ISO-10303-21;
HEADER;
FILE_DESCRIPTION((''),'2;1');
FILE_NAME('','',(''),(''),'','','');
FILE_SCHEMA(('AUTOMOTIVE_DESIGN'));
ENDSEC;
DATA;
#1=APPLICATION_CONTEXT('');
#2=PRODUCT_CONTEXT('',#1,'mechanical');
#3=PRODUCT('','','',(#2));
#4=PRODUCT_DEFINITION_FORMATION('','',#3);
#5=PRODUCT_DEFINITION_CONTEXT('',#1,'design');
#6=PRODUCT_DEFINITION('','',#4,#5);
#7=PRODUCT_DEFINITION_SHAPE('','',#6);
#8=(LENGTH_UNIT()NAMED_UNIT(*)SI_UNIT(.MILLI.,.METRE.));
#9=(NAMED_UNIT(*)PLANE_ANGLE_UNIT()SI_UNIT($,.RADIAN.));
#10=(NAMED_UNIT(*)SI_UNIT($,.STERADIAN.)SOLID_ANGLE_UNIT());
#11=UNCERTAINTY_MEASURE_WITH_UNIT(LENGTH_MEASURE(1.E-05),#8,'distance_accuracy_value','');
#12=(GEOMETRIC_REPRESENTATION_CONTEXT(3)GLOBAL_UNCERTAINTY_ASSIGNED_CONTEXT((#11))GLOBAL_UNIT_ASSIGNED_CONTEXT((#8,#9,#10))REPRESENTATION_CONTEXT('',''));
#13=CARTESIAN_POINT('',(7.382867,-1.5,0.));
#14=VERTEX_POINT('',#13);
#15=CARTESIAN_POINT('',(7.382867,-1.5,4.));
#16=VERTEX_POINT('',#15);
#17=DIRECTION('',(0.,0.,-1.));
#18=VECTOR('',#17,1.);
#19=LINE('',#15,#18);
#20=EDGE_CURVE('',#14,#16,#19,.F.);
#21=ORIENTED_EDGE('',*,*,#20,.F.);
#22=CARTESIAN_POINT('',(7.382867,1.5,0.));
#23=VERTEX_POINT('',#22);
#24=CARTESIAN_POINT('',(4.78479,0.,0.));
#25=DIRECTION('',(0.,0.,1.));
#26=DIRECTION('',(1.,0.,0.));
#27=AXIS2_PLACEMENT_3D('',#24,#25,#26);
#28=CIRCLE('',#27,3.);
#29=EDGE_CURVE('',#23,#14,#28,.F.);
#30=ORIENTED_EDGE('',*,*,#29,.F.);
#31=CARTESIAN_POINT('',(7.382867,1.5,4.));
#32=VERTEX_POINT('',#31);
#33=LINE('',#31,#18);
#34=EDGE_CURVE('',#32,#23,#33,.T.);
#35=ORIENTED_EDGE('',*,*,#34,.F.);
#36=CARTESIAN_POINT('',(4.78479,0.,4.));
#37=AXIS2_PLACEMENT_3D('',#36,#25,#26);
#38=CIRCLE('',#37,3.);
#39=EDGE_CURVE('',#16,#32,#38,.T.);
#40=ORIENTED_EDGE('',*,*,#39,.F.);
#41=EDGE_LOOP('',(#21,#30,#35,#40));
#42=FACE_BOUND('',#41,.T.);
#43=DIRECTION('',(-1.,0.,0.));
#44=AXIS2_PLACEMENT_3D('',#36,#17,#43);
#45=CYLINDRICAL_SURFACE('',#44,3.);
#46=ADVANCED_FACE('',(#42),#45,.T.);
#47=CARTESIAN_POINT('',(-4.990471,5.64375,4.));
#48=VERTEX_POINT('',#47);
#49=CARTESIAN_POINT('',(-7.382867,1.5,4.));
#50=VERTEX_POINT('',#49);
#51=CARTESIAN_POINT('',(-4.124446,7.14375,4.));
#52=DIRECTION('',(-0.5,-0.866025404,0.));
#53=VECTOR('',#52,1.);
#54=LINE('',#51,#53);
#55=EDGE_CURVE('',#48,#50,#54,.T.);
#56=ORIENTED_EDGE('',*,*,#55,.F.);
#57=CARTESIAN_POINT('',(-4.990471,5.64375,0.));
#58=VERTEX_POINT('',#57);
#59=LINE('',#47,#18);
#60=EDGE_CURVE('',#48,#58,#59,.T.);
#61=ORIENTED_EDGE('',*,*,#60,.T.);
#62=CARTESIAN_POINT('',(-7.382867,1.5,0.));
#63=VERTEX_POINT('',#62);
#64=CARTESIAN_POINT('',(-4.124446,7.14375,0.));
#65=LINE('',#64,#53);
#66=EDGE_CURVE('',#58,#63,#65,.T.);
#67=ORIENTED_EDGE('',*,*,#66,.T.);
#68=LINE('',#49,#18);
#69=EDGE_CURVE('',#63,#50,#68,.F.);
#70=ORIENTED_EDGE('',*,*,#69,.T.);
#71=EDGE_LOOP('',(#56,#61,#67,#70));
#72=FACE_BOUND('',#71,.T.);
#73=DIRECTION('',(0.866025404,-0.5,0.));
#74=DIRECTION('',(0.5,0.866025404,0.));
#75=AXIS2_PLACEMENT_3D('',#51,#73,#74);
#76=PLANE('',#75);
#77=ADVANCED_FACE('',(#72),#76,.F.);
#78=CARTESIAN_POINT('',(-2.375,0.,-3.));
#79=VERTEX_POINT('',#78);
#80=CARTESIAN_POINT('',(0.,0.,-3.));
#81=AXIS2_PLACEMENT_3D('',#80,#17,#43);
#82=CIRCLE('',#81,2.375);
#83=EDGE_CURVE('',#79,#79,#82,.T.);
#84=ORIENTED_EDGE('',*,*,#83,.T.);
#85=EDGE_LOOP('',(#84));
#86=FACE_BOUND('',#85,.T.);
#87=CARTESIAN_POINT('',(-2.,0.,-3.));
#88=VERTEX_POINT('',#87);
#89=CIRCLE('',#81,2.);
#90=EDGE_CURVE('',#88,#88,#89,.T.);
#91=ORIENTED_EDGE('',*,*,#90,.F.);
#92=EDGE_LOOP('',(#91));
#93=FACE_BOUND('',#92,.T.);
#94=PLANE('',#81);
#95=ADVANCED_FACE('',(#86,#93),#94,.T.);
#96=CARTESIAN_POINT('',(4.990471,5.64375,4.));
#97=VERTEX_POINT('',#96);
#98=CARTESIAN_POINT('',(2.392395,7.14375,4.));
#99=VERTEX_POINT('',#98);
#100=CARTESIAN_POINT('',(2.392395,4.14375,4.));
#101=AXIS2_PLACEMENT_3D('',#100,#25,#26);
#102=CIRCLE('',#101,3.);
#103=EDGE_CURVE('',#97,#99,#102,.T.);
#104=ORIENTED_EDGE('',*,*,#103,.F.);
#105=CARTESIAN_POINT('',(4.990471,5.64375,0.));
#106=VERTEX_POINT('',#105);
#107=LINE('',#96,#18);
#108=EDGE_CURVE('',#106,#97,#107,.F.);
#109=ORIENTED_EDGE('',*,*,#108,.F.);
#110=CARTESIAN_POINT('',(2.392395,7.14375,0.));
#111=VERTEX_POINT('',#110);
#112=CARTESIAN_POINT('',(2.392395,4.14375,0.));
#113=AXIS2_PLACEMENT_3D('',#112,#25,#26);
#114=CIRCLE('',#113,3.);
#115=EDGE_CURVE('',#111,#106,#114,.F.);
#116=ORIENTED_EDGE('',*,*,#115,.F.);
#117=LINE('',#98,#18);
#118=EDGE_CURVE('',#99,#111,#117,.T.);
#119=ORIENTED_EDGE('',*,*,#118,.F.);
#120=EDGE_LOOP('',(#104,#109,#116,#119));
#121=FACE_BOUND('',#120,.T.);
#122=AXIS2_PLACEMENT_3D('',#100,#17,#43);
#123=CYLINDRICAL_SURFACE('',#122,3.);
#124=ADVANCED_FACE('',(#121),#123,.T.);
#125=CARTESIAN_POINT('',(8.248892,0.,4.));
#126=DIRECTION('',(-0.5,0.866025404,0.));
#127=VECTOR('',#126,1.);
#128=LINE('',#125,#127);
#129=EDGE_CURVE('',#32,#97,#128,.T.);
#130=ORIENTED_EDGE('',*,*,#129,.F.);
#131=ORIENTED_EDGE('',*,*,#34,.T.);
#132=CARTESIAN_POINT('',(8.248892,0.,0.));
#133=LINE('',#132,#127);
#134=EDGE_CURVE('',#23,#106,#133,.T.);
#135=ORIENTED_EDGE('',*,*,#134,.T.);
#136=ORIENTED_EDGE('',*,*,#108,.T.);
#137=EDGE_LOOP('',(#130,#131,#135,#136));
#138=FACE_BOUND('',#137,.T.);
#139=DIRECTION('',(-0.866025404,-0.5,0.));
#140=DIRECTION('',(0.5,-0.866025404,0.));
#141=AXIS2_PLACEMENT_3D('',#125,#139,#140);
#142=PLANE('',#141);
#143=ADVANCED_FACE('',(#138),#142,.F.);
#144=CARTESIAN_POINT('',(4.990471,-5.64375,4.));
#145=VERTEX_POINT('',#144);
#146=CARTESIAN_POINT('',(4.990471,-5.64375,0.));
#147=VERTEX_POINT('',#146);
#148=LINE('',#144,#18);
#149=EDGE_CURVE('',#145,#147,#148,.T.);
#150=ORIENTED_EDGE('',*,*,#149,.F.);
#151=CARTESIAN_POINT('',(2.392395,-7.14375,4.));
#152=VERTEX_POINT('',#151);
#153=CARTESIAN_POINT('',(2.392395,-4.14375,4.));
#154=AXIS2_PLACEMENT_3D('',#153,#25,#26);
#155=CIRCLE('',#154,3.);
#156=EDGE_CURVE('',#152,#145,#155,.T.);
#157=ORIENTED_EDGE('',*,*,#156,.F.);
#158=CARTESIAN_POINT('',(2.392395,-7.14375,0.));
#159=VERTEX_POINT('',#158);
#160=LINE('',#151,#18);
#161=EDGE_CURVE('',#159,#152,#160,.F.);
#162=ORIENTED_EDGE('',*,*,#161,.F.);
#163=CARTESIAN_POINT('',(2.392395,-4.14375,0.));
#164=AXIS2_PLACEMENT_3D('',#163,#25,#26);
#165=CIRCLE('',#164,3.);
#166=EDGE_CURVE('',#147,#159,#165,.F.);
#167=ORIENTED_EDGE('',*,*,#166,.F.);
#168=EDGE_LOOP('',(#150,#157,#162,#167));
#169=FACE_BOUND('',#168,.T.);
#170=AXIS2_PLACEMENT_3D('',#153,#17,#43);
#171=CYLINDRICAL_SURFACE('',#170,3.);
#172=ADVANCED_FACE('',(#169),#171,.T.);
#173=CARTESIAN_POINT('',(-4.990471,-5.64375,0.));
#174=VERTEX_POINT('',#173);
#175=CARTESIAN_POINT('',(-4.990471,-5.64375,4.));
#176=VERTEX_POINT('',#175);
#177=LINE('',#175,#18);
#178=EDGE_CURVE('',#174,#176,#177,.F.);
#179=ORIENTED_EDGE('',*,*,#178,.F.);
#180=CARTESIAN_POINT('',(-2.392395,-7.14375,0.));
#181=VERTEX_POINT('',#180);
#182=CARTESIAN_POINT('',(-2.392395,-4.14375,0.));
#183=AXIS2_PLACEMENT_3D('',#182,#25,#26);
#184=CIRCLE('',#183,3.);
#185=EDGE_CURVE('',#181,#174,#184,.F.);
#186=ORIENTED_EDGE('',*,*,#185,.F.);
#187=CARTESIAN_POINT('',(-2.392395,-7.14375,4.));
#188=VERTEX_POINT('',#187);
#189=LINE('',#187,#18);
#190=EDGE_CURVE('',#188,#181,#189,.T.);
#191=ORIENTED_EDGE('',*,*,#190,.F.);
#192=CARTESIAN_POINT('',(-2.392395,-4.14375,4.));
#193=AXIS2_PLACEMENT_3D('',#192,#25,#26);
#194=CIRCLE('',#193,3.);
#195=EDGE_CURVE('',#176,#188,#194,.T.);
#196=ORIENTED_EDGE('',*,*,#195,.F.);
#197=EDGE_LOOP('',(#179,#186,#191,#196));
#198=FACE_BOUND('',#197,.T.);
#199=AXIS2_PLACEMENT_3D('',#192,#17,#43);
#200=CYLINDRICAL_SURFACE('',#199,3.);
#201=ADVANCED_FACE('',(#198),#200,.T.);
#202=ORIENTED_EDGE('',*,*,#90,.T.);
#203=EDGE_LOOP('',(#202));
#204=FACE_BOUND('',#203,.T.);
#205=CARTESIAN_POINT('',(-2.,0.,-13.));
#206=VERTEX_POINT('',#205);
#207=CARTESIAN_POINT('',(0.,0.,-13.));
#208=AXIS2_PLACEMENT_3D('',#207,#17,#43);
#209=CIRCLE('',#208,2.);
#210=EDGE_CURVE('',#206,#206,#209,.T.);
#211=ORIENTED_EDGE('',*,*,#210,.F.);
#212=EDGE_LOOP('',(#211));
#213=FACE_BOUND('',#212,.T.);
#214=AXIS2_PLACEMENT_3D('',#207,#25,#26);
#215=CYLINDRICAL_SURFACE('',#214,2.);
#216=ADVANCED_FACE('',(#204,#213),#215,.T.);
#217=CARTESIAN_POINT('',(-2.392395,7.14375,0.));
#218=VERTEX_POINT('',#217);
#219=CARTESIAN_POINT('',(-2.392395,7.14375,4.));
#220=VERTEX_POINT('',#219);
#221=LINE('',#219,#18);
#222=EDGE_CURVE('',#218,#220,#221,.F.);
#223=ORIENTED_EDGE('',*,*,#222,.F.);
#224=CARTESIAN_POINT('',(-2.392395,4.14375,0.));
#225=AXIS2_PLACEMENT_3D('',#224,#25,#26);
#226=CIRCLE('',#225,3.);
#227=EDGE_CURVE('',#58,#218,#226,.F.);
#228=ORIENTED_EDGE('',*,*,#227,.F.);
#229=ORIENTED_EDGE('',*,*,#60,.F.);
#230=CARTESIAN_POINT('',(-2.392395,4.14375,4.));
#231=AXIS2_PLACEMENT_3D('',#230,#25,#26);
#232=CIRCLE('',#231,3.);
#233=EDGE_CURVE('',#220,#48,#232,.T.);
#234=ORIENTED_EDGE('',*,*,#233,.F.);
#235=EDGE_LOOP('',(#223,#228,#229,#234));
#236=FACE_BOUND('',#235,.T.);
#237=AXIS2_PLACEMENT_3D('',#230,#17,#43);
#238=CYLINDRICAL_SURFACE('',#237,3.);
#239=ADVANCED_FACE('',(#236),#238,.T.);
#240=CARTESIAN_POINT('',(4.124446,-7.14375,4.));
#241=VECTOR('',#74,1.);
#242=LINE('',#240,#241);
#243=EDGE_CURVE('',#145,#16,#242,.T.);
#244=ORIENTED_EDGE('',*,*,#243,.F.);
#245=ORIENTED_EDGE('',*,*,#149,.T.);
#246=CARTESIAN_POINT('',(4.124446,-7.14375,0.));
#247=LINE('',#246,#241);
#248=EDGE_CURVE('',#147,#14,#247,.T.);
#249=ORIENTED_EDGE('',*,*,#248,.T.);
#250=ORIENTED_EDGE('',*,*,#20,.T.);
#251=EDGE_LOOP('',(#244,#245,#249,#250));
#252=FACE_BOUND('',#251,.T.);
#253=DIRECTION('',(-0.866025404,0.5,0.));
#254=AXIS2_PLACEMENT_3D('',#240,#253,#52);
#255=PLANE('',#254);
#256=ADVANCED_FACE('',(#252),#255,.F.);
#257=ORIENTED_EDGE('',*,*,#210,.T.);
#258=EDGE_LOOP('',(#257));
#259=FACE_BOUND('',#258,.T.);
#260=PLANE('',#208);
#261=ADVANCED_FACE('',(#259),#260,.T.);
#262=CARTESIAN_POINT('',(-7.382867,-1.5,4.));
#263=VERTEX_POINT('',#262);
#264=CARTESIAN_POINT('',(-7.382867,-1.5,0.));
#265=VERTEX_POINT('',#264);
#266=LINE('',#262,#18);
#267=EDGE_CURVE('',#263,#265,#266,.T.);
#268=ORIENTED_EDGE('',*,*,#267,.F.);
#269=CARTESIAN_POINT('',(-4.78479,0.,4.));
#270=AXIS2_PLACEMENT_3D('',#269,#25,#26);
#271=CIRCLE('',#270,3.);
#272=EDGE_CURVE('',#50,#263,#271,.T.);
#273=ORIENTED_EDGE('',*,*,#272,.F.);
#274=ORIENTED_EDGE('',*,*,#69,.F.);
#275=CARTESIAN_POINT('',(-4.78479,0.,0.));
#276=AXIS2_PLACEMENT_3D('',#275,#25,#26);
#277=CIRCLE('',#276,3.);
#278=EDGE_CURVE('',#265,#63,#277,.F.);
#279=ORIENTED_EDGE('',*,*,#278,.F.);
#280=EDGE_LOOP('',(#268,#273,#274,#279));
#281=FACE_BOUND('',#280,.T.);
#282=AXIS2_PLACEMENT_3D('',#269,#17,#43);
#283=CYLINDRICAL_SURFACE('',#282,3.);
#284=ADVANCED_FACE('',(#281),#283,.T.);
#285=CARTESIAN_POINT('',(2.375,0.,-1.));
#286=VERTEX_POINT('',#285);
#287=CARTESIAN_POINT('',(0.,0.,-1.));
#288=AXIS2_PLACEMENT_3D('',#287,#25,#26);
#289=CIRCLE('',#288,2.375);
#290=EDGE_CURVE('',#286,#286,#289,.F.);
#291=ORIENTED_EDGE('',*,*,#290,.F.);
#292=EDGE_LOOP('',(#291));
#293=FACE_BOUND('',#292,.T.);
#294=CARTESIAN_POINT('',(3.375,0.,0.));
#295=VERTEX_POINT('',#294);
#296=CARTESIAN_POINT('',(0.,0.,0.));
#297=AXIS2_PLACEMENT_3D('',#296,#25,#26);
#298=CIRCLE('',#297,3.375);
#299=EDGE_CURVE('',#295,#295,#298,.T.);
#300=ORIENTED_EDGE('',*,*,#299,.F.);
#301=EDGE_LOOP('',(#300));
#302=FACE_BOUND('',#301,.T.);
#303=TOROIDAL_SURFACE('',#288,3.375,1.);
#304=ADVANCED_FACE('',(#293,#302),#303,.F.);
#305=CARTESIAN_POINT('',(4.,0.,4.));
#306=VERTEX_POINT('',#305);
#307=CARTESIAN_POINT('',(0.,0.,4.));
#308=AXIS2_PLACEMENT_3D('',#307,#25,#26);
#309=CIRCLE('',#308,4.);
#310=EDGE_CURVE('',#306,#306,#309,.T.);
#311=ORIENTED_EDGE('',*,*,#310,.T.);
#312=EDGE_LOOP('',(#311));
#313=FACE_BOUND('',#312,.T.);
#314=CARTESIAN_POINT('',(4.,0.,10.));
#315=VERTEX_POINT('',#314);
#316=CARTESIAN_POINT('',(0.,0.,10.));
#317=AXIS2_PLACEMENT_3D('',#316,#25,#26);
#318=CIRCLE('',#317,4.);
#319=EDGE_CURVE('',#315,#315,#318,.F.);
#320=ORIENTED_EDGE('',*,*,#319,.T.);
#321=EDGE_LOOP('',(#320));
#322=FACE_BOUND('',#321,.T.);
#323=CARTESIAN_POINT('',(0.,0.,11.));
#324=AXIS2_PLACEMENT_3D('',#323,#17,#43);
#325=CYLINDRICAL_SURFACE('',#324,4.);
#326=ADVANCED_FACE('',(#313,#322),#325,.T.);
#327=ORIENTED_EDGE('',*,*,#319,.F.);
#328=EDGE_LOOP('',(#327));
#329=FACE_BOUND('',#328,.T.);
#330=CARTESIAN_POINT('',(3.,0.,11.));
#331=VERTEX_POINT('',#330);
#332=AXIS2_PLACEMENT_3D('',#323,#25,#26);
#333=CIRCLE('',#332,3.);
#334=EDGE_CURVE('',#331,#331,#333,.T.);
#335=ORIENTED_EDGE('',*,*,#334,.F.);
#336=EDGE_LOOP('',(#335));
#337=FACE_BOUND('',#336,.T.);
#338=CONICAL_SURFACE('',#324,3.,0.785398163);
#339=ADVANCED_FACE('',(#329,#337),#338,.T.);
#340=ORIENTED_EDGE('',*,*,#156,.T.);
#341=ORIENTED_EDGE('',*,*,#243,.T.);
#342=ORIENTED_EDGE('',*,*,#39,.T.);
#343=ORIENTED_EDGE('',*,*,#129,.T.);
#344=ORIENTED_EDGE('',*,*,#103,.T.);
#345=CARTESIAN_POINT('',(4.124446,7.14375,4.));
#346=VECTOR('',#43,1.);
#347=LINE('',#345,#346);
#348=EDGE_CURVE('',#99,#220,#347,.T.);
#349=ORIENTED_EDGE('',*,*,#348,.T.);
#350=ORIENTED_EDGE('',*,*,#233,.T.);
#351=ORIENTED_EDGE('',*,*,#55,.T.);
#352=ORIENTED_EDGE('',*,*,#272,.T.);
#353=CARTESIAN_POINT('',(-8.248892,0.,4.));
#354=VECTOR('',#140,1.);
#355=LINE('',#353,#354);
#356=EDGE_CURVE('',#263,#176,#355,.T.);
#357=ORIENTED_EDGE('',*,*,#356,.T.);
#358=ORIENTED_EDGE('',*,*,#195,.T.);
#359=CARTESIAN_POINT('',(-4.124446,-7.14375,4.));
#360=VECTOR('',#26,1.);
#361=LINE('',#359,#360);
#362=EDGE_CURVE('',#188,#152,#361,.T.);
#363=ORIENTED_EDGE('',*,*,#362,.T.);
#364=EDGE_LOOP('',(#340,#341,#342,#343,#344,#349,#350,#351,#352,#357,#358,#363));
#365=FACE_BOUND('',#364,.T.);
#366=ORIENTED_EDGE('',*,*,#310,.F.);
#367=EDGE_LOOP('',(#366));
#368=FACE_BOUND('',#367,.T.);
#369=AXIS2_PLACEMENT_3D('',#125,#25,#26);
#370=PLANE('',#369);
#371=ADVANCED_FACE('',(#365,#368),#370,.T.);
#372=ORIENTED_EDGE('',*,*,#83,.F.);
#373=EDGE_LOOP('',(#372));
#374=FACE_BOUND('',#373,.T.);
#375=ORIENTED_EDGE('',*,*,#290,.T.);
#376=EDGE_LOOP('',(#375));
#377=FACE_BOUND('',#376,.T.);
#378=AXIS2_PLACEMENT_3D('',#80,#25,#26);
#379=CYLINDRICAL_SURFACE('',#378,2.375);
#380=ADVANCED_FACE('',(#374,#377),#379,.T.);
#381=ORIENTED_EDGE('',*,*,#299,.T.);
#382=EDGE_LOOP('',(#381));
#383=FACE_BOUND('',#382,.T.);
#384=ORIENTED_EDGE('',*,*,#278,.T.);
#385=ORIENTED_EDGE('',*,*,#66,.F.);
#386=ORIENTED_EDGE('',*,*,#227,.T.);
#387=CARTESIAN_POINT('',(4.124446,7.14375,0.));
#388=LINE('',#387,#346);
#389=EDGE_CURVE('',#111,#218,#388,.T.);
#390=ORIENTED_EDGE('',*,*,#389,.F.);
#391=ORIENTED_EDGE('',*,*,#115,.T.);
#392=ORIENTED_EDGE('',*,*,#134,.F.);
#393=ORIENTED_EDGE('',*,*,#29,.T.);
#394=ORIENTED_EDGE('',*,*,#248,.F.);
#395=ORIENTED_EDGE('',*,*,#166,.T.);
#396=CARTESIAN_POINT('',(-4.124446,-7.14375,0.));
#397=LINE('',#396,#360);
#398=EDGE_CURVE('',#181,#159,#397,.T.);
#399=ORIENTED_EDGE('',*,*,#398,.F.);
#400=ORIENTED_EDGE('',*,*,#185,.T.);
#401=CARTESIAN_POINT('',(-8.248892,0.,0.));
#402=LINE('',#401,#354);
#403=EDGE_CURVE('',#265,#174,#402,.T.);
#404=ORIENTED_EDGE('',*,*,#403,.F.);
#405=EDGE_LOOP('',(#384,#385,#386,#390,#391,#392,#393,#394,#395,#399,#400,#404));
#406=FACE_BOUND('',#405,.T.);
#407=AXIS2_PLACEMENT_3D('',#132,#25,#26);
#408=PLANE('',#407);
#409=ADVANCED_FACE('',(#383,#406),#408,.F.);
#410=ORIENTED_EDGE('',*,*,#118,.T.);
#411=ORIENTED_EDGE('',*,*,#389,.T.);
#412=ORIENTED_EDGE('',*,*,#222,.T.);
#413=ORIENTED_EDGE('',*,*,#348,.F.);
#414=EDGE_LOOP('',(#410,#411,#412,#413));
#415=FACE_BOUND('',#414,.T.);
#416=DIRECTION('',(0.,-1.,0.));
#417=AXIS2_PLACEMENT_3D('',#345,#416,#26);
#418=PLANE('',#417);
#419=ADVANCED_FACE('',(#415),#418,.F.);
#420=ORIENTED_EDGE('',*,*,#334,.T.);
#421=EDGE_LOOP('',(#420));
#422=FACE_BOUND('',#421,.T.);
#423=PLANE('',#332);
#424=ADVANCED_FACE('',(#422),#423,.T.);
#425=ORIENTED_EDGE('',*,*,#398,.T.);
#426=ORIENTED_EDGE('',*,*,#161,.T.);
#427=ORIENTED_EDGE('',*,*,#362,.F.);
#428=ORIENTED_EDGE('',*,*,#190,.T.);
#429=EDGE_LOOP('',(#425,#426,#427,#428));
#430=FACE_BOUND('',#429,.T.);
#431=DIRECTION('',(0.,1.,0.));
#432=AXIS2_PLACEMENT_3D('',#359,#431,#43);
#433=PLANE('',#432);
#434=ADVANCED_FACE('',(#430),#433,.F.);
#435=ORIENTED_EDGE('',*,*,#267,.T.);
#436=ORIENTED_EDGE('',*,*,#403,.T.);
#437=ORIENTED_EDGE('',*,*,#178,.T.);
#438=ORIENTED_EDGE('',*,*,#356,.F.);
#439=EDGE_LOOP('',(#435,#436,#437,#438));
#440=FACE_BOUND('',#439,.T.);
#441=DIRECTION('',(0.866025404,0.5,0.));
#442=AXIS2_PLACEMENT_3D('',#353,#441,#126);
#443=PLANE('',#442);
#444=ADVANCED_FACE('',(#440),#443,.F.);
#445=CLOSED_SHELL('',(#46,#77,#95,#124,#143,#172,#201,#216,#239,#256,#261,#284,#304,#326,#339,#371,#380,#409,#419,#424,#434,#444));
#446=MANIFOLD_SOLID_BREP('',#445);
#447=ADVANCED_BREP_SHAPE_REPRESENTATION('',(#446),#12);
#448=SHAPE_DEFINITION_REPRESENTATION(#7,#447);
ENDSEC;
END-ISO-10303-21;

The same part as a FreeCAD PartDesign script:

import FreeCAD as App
import Part
import Sketcher
Q = App.Units.Quantity


def edges_at(feature, points):
    """Names of the edges that pass closest to the given points."""
    edges = feature.Shape.Edges
    near = lambda p: min(range(len(edges)), key=lambda i: edges[i].distToShape(Part.Vertex(*p))[0])
    return sorted({f"Edge{near(p) + 1}" for p in points})

doc = App.newDocument("Part")
body = doc.addObject("PartDesign::Body", "Body")

sketch1 = body.newObject("Sketcher::SketchObject", "Sketch")
sketch1.AttachmentSupport = (doc.getObject("XY_Plane"), [""])
sketch1.MapMode = "FlatFace"
sketch1.addGeometry([
    Part.LineSegment(App.Vector(8, 0, 0), App.Vector(4, 7, 0)),
    Part.LineSegment(App.Vector(4, 7, 0), App.Vector(-4, 7, 0)),
    Part.LineSegment(App.Vector(-4, 7, 0), App.Vector(-8, 0, 0)),
    Part.LineSegment(App.Vector(-8, 0, 0), App.Vector(-4, -7, 0)),
    Part.LineSegment(App.Vector(-4, -7, 0), App.Vector(4, -7, 0)),
    Part.LineSegment(App.Vector(4, -7, 0), App.Vector(8, 0, 0)),
], False)
sketch1.addConstraint([
    Sketcher.Constraint("Coincident", 0, 2, 1, 1),
    Sketcher.Constraint("Coincident", 1, 2, 2, 1),
    Sketcher.Constraint("Coincident", 2, 2, 3, 1),
    Sketcher.Constraint("Coincident", 3, 2, 4, 1),
    Sketcher.Constraint("Coincident", 4, 2, 5, 1),
    Sketcher.Constraint("Coincident", 5, 2, 0, 1),
    Sketcher.Constraint("Horizontal", 1),
    Sketcher.Constraint("Horizontal", 4),
    Sketcher.Constraint("Symmetric", 0, 2, 3, 2, -1, 1),
    Sketcher.Constraint("Symmetric", 2, 2, 5, 2, -1, 1),
    Sketcher.Constraint("PointOnObject", 2, 2, -1),
    Sketcher.Constraint("Parallel", 2, 5),
    Sketcher.Constraint("Vertical", 1, 2, 3, 2),
    Sketcher.Constraint("Angle", 0, Q("120 deg")),
    Sketcher.Constraint("DistanceX", 1, 2, 1, 1, 8.248892),
    Sketcher.Constraint("DistanceY", 3, 2, 1, 2, 14.2875),
])
pad1 = body.newObject("PartDesign::Pad", "Pad")
pad1.Profile = sketch1
pad1.Length = 4

sketch2 = body.newObject("Sketcher::SketchObject", "Sketch001")
sketch2.AttachmentSupport = (doc.getObject("XY_Plane"), [""])
sketch2.MapMode = "FlatFace"
sketch2.AttachmentOffset = App.Placement(App.Vector(0, 0, 4), App.Rotation())
sketch2.addGeometry(Part.Circle(App.Vector(0, 0, 0), App.Vector(0, 0, 1), 4), False)
sketch2.addConstraint([
    Sketcher.Constraint("Coincident", 0, 3, -1, 1),
    Sketcher.Constraint("Diameter", 0, 8.0),
])
pad2 = body.newObject("PartDesign::Pad", "Pad001")
pad2.Profile = sketch2
pad2.Length = 7
doc.recompute()

chamfer = body.newObject("PartDesign::Chamfer", "Chamfer")
chamfer.Base = (pad2, edges_at(pad2, [(-4, 0, 11)]))
chamfer.Size = 1

sketch3 = body.newObject("Sketcher::SketchObject", "Sketch002")
sketch3.AttachmentSupport = (doc.getObject("XY_Plane"), [""])
sketch3.MapMode = "FlatFace"
sketch3.addGeometry(Part.Circle(App.Vector(0, 0, 0), App.Vector(0, 0, 1), 2.4), False)
sketch3.addConstraint([
    Sketcher.Constraint("Coincident", 0, 3, -1, 1),
    Sketcher.Constraint("Diameter", 0, 4.75),
])
pad3 = body.newObject("PartDesign::Pad", "Pad002")
pad3.Profile = sketch3
pad3.Length = 3
pad3.Reversed = True

sketch4 = body.newObject("Sketcher::SketchObject", "Sketch003")
sketch4.AttachmentSupport = (doc.getObject("XY_Plane"), [""])
sketch4.MapMode = "FlatFace"
sketch4.AttachmentOffset = App.Placement(App.Vector(0, 0, -3), App.Rotation())
sketch4.addGeometry(Part.Circle(App.Vector(0, 0, 0), App.Vector(0, 0, 1), 2), False)
sketch4.addConstraint([
    Sketcher.Constraint("Coincident", 0, 3, -1, 1),
    Sketcher.Constraint("Diameter", 0, 4.0),
])
pad4 = body.newObject("PartDesign::Pad", "Pad003")
pad4.Profile = sketch4
pad4.Length = 10
pad4.Reversed = True
doc.recompute()

fillet = body.newObject("PartDesign::Fillet", "Fillet")
fillet.Base = (pad4, edges_at(pad4, [
    (4.124, -7.144, 2),
    (-4.124, -7.144, 2),
    (-8.249, 0, 2),
    (-4.124, 7.144, 2),
    (4.124, 7.144, 2),
    (8.249, 0, 2),
]))
fillet.Radius = 3
doc.recompute()

fillet2 = body.newObject("PartDesign::Fillet", "Fillet001")
fillet2.Base = (fillet, edges_at(fillet, [(2.375, 0, 0)]))
fillet2.Radius = 1

doc.recompute()
